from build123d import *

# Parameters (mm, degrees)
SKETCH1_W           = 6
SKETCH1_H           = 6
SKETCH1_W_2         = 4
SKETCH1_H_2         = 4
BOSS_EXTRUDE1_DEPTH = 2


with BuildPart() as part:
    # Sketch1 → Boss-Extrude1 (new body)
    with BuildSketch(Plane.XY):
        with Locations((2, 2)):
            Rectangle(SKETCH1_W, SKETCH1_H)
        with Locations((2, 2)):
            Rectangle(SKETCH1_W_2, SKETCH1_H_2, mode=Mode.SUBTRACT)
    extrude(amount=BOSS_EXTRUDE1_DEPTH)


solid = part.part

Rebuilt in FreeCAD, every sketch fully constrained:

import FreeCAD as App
import Part
import Sketcher


def add_polygon(sketch, points):
    """Adds a closed chain of lines whose ends are joined by coincident constraints."""
    first, n = sketch.GeometryCount, len(points)
    for a, b in zip(points, points[1:] + points[:1]):
        sketch.addGeometry(Part.LineSegment(App.Vector(*a, 0), App.Vector(*b, 0)), False)
    for i in range(n):
        sketch.addConstraint(Sketcher.Constraint("Coincident", first + i, 2, first + (i + 1) % n, 1))

doc = App.newDocument("Part")
body = doc.addObject("PartDesign::Body", "Body")

# Sketch on XY plane
sketch1 = body.newObject("Sketcher::SketchObject", "Sketch")
sketch1.AttachmentSupport = (doc.getObject("XY_Plane"), [""])
sketch1.MapMode = "FlatFace"
add_polygon(sketch1, [(-1, 5), (-1, -1), (5, -1), (5, 5)])  # lines 0-3
add_polygon(sketch1, [(4, 0), (0, 0), (0, 4), (4, 4)])  # lines 4-7
sketch1.addConstraint([
    Sketcher.Constraint("Vertical", 0),
    Sketcher.Constraint("Horizontal", 1),
    Sketcher.Constraint("Vertical", 2),
    Sketcher.Constraint("Horizontal", 3),
    Sketcher.Constraint("Horizontal", 4),
    Sketcher.Constraint("Vertical", 5),
    Sketcher.Constraint("Horizontal", 6),
    Sketcher.Constraint("Vertical", 7),
    Sketcher.Constraint("Coincident", 4, 2, -1, 1),
    Sketcher.Constraint("Equal", 3, 0),
    Sketcher.Constraint("Equal", 6, 5),
    Sketcher.Constraint("DistanceX", 1, 1, 1, 2, 6.0),
    Sketcher.Constraint("DistanceX", 4, 2, 4, 1, 4.0),
    Sketcher.Constraint("DistanceX", 0, 2, -1, 1, 1.0),
    Sketcher.Constraint("DistanceY", 0, 2, -1, 1, 1.0),
])
pad1 = body.newObject("PartDesign::Pad", "Pad")
pad1.Profile = sketch1
pad1.Length = 2

doc.recompute()
